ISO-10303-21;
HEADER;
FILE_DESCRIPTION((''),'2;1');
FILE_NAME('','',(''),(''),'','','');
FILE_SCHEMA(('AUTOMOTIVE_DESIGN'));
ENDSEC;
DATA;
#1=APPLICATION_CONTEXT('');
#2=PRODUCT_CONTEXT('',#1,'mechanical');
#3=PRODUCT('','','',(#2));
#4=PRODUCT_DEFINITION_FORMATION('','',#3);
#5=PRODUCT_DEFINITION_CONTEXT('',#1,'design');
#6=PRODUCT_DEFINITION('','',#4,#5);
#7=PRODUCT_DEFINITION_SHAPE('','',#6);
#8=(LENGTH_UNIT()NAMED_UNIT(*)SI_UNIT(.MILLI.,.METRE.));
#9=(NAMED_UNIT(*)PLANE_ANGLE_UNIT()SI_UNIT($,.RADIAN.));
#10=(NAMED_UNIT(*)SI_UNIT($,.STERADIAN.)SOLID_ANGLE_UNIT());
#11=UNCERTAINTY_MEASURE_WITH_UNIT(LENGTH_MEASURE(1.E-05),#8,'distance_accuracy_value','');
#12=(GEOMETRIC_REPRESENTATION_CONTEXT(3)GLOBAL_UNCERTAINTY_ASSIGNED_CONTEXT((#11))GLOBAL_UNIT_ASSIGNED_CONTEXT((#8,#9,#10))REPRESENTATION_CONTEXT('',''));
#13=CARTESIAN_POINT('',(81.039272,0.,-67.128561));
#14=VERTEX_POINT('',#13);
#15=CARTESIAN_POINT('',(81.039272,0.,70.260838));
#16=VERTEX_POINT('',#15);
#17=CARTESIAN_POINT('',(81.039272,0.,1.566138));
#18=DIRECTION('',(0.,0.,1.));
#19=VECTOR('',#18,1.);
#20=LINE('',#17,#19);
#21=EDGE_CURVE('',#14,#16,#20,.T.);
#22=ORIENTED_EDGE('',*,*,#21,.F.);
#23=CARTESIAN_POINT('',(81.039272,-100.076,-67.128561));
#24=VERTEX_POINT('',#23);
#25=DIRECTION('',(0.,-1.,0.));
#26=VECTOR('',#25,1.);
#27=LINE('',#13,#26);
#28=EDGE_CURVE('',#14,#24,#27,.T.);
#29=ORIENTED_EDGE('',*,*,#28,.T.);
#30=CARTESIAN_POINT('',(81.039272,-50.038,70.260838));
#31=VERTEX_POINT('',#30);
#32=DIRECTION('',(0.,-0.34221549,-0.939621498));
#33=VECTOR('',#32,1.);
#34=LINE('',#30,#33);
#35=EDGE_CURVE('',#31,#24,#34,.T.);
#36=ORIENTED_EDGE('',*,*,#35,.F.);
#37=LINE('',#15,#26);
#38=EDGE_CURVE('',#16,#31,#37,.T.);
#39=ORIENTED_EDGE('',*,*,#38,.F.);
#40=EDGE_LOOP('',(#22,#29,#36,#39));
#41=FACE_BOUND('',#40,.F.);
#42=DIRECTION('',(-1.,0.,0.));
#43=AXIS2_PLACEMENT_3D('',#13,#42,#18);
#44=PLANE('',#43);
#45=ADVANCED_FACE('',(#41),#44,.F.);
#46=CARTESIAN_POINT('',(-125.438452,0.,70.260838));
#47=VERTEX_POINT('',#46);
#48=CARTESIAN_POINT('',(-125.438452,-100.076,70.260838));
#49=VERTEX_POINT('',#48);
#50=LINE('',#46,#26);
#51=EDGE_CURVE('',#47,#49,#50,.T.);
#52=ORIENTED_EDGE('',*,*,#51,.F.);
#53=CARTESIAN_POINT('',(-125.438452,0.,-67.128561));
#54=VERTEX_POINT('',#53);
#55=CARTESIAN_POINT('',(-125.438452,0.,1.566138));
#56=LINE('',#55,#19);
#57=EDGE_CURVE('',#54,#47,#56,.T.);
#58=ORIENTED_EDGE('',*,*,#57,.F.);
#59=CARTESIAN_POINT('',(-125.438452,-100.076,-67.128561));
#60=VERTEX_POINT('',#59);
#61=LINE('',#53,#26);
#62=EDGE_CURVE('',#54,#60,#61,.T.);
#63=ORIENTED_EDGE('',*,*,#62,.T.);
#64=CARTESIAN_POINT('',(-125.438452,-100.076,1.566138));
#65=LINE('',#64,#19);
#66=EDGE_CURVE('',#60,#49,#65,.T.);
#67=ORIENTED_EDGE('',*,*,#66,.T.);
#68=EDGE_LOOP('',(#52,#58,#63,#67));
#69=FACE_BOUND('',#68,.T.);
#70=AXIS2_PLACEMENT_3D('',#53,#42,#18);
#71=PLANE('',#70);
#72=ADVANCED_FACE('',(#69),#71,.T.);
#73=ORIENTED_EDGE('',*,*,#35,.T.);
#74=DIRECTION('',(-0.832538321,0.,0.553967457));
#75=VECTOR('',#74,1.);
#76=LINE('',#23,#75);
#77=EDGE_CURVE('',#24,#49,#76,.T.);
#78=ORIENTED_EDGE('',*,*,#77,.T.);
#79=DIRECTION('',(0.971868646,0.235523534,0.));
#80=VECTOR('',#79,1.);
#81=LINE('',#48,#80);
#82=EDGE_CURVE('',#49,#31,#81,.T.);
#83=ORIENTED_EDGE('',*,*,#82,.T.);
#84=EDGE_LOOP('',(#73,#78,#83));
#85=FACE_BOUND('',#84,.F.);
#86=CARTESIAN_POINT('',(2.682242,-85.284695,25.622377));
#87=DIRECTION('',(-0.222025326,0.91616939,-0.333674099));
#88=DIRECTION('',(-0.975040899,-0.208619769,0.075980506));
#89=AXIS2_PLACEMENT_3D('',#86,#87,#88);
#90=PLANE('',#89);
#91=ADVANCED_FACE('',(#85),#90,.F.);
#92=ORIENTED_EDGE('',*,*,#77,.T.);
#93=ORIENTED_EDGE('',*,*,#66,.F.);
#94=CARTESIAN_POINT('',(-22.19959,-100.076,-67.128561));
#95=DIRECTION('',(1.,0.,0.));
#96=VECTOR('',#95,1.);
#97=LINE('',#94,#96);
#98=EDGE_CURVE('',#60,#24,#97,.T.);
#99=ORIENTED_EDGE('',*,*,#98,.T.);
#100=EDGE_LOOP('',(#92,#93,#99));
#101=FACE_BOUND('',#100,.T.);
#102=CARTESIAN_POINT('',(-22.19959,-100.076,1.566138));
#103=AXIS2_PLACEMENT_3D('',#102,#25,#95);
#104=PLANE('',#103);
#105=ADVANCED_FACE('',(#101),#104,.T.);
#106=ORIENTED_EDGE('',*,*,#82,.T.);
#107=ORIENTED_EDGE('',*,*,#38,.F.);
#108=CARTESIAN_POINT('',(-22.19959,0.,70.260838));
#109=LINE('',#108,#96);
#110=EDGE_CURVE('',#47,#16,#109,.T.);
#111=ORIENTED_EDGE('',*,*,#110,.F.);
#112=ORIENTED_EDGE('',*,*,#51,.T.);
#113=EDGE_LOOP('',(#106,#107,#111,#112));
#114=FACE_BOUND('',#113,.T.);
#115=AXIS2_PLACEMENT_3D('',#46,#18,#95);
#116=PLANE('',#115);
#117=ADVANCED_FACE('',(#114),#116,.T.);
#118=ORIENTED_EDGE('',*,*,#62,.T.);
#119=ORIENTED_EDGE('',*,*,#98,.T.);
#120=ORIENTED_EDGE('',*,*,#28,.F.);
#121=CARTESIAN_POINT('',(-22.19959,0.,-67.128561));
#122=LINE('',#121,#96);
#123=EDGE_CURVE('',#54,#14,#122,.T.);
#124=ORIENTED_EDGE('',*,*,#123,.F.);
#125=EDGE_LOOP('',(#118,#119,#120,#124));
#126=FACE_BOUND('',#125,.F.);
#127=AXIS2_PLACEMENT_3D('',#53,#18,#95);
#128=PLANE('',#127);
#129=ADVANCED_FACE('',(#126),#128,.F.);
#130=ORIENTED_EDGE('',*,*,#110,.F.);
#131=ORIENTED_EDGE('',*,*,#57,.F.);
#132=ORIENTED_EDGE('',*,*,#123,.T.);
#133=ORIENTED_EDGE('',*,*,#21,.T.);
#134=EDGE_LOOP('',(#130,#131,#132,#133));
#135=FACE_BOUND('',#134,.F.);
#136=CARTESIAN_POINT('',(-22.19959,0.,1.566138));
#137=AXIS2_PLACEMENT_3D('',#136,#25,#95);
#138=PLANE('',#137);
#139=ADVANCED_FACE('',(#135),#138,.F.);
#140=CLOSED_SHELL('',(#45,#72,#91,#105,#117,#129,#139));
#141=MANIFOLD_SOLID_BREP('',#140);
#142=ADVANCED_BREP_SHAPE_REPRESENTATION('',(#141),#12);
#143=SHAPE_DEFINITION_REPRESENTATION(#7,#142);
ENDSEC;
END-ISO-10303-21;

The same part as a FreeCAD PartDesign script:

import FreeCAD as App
import Part
import Sketcher

V = App.Vector
Q = App.Units.Quantity

doc = App.newDocument("Part")
body = doc.addObject("PartDesign::Body", "Body")

sketch1 = body.newObject("Sketcher::SketchObject", "Sketch")
sketch1.AttachmentSupport = (doc.getObject("XZ_Plane"), [""])
sketch1.MapMode = "FlatFace"
sketch1.addGeometry(Part.LineSegment(V(-125, 70, 0), V(-125, -67, 0)), False)
sketch1.addGeometry(Part.LineSegment(V(-125, -67, 0), V(81, -67, 0)), False)
sketch1.addGeometry(Part.LineSegment(V(81, -67, 0), V(81, 70, 0)), False)
sketch1.addGeometry(Part.LineSegment(V(81, 70, 0), V(-125, 70, 0)), False)
sketch1.addConstraint(Sketcher.Constraint("Coincident", 0, 2, 1, 1))
sketch1.addConstraint(Sketcher.Constraint("Coincident", 1, 2, 2, 1))
sketch1.addConstraint(Sketcher.Constraint("Coincident", 2, 2, 3, 1))
sketch1.addConstraint(Sketcher.Constraint("Coincident", 3, 2, 0, 1))
sketch1.addConstraint(Sketcher.Constraint("Vertical", 0))
sketch1.addConstraint(Sketcher.Constraint("Horizontal", 1))
sketch1.addConstraint(Sketcher.Constraint("Vertical", 2))
sketch1.addConstraint(Sketcher.Constraint("Horizontal", 3))
sketch1.addConstraint(Sketcher.Constraint("DistanceY", 0, 2, 0, 1, 137.389399))
sketch1.addConstraint(Sketcher.Constraint("DistanceX", 1, 1, 1, 2, 206.477724))
sketch1.addConstraint(Sketcher.Constraint("DistanceX", 0, 2, -1, 1, 125.438452))
sketch1.addConstraint(Sketcher.Constraint("DistanceY", 0, 2, -1, 1, 67.128561))
pad1 = body.newObject("PartDesign::Pad", "Pad")
pad1.Profile = sketch1
pad1.Length = Q("3.94 in")

sketch2 = body.newObject("Sketcher::SketchObject", "Sketch001")
sketch2.Placement = App.Placement(V(19.378432, -79.963518, 29.123168), App.Rotation(V(-0.975040899, -0.208619769, 0.075980506), V(0, 0.34221549, 0.939621498), V(-0.222025326, 0.91616939, -0.333674099), "ZXY"))
sketch2.addGeometry(Part.LineSegment(V(-63, 49, 0), V(-63, -97, 0)), False)
sketch2.addGeometry(Part.LineSegment(V(-63, -97, 0), V(149, 32, 0)), False)
sketch2.addGeometry(Part.LineSegment(V(149, 32, 0), V(-63, 49, 0)), False)
sketch2.addConstraint(Sketcher.Constraint("Coincident", 0, 2, 1, 1))
sketch2.addConstraint(Sketcher.Constraint("Coincident", 1, 2, 2, 1))
sketch2.addConstraint(Sketcher.Constraint("Coincident", 2, 2, 0, 1))
sketch2.addConstraint(Sketcher.Constraint("Vertical", 0))
sketch2.addConstraint(Sketcher.Constraint("DistanceY", 0, 2, 0, 1, 146.217812))
sketch2.addConstraint(Sketcher.Constraint("DistanceX", 0, 2, 1, 2, 211.763142))
sketch2.addConstraint(Sketcher.Constraint("DistanceY", 1, 2, 2, 2, 17.123779))
sketch2.addConstraint(Sketcher.Constraint("DistanceX", 0, 2, -1, 1, 63.239235))
sketch2.addConstraint(Sketcher.Constraint("DistanceY", 0, 2, -1, 1, 97.322997))
pocket1 = body.newObject("PartDesign::Pocket", "Pocket")
pocket1.Profile = sketch2
pocket1.Type = "ThroughAll"

doc.recompute()
